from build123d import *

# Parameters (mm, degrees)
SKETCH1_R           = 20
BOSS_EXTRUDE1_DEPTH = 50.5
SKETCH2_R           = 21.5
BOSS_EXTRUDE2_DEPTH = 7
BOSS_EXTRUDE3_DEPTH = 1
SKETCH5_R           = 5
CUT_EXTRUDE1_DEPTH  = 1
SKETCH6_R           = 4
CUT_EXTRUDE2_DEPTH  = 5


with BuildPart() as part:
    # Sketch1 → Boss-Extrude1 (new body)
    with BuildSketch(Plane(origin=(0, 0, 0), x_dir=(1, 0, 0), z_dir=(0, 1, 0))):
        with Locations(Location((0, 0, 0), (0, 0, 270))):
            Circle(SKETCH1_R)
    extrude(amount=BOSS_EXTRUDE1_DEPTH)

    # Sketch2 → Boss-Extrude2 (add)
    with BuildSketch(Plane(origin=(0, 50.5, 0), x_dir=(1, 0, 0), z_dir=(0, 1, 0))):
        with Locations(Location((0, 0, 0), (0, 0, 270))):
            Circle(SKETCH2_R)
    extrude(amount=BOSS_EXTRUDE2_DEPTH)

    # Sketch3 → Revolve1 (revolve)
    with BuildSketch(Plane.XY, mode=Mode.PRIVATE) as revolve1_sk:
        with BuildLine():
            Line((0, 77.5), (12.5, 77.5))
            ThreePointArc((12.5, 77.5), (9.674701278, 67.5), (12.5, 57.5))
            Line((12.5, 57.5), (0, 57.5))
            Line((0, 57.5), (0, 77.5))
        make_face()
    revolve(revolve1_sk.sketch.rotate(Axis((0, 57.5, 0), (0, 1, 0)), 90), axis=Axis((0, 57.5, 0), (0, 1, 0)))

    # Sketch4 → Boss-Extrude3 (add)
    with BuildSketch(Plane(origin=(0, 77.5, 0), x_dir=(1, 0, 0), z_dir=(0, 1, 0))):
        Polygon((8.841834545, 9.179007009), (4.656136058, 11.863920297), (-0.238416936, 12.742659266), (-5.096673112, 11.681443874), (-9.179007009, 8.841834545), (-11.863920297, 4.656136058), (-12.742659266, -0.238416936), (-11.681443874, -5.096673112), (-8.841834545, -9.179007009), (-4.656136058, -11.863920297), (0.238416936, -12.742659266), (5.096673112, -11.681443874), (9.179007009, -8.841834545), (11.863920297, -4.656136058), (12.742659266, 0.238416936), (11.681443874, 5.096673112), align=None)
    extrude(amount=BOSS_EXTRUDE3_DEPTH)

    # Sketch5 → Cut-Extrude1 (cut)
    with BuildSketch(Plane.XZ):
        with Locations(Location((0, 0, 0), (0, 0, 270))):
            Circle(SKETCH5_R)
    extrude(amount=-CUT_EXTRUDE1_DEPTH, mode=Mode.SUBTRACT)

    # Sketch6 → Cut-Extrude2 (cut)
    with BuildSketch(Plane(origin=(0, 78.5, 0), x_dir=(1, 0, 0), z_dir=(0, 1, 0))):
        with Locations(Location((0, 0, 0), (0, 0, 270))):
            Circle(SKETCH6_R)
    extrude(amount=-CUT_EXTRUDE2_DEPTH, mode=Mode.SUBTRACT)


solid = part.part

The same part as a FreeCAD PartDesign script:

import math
import FreeCAD as App
import Part
import Sketcher


def add_polygon(sketch, points):
    """Adds a closed chain of lines whose ends are joined by coincident constraints."""
    first, n = sketch.GeometryCount, len(points)
    for a, b in zip(points, points[1:] + points[:1]):
        sketch.addGeometry(Part.LineSegment(App.Vector(*a, 0), App.Vector(*b, 0)), False)
    for i in range(n):
        sketch.addConstraint(Sketcher.Constraint("Coincident", first + i, 2, first + (i + 1) % n, 1))

doc = App.newDocument("Part")
body = doc.addObject("PartDesign::Body", "Body")

sketch1 = doc.addObject("Sketcher::SketchObject", "Sketch")
body.addObject(sketch1)
sketch1.AttachmentSupport = (doc.XZ_Plane, [""])
sketch1.MapMode = "FlatFace"
sketch1.addGeometry(Part.Circle(App.Vector(0, 0, 0), App.Vector(0, 0, 1), 20), False)
sketch1.addConstraint([
    Sketcher.Constraint("Coincident", 0, 3, -1, 1),
    Sketcher.Constraint("Diameter", 0, 40.0),
])
pad1 = doc.addObject("PartDesign::Pad", "Pad")
body.addObject(pad1)
pad1.Profile = sketch1
pad1.Length = 50.5
pad1.Reversed = True

sketch2 = doc.addObject("Sketcher::SketchObject", "Sketch001")
body.addObject(sketch2)
sketch2.AttachmentSupport = (doc.XZ_Plane, [""])
sketch2.MapMode = "FlatFace"
sketch2.AttachmentOffset = App.Placement(App.Vector(0, 0, -50.5), App.Rotation())
sketch2.addGeometry(Part.Circle(App.Vector(0, 0, 0), App.Vector(0, 0, 1), 22), False)
sketch2.addConstraint([
    Sketcher.Constraint("Coincident", 0, 3, -1, 1),
    Sketcher.Constraint("Diameter", 0, 43.0),
])
pad2 = doc.addObject("PartDesign::Pad", "Pad001")
body.addObject(pad2)
pad2.Profile = sketch2
pad2.Length = 7
pad2.Reversed = True

sketch3 = doc.addObject("Sketcher::SketchObject", "Sketch002")
body.addObject(sketch3)
sketch3.AttachmentSupport = (doc.XY_Plane, [""])
sketch3.MapMode = "FlatFace"
sketch3.addGeometry([
    Part.LineSegment(App.Vector(12, 78, 0), App.Vector(0, 78, 0)),
    Part.LineSegment(App.Vector(0, 78, 0), App.Vector(0, 58, 0)),
    Part.LineSegment(App.Vector(0, 58, 0), App.Vector(12, 58, 0)),
    Part.ArcOfCircle(Part.Circle(App.Vector(29, 68, 0), App.Vector(0, 0, 1), 19), math.radians(148), math.radians(212)),
], False)
sketch3.addConstraint([
    Sketcher.Constraint("Coincident", 0, 2, 1, 1),
    Sketcher.Constraint("Coincident", 1, 2, 2, 1),
    Sketcher.Constraint("Coincident", 2, 2, 3, 2),
    Sketcher.Constraint("Coincident", 3, 1, 0, 1),
    Sketcher.Constraint("Horizontal", 0),
    Sketcher.Constraint("Vertical", 1),
    Sketcher.Constraint("Horizontal", 2),
    Sketcher.Constraint("PointOnObject", 0, 2, -2),
    Sketcher.Constraint("Vertical", 2, 2, 3, 1),
    Sketcher.Constraint("DistanceY", 1, 2, 1, 1, 20.0),
    Sketcher.Constraint("DistanceX", 0, 2, 0, 1, 12.5),
    Sketcher.Constraint("DistanceY", -1, 1, 3, 3, 67.5),
    Sketcher.Constraint("Radius", 3, 19.109893),
])
revolution = doc.addObject("PartDesign::Revolution", "Revolution")
body.addObject(revolution)
revolution.Profile = sketch3
revolution.ReferenceAxis = (sketch3, ["V_Axis"])
revolution.Angle = 360

sketch4 = doc.addObject("Sketcher::SketchObject", "Sketch003")
body.addObject(sketch4)
sketch4.AttachmentSupport = (doc.XZ_Plane, [""])
sketch4.MapMode = "FlatFace"
sketch4.AttachmentOffset = App.Placement(App.Vector(0, 0, -77.5), App.Rotation())
add_polygon(sketch4, [(8.8, -9.2), (4.7, -11.9), (-0.2, -12.7), (-5.1, -11.7), (-9.2, -8.8), (-11.9, -4.7), (-12.7, 0.2), (-11.7, 5.1), (-8.8, 9.2), (-4.7, 11.9), (0.2, 12.7), (5.1, 11.7), (9.2, 8.8), (11.9, 4.7), (12.7, -0.2), (11.7, -5.1)])
sketch4.addConstraint([
    Sketcher.Constraint("Symmetric", 0, 2, 8, 2, -1, 1),
    Sketcher.Constraint("Symmetric", 1, 2, 9, 2, -1, 1),
    Sketcher.Constraint("Symmetric", 2, 2, 10, 2, -1, 1),
    Sketcher.Constraint("Symmetric", 3, 2, 11, 2, -1, 1),
    Sketcher.Constraint("Symmetric", 4, 2, 12, 2, -1, 1),
    Sketcher.Constraint("Symmetric", 5, 2, 13, 2, -1, 1),
    Sketcher.Constraint("Symmetric", 6, 2, 14, 2, -1, 1),
    Sketcher.Constraint("Symmetric", 7, 2, 15, 2, -1, 1),
    Sketcher.Constraint("Perpendicular", 0, 4),
    Sketcher.Constraint("Perpendicular", 1, 5),
    Sketcher.Constraint("Perpendicular", 2, 6),
    Sketcher.Constraint("Perpendicular", 3, 7),
    Sketcher.Constraint("Equal", 0, 1),
    Sketcher.Constraint("Equal", 1, 2),
    Sketcher.Constraint("Equal", 2, 3),
    Sketcher.Constraint("Equal", 3, 4),
    Sketcher.Constraint("Equal", 4, 5),
    Sketcher.Constraint("Equal", 5, 6),
    Sketcher.Constraint("Equal", 6, 7),
    Sketcher.Constraint("DistanceY", 3, 2, 4, 2, 4.185698),
    Sketcher.Constraint("Distance", 0, 4.972809),
    Sketcher.Constraint("DistanceY", 0, 2, -1, 1, 11.86392),
    Sketcher.Constraint("DistanceY", 1, 2, -1, 1, 12.742659),
    Sketcher.Constraint("DistanceX", 2, 2, 0, 2, 9.752809),
])
pad3 = doc.addObject("PartDesign::Pad", "Pad002")
body.addObject(pad3)
pad3.Profile = sketch4
pad3.Length = 1
pad3.Reversed = True

sketch5 = doc.addObject("Sketcher::SketchObject", "Sketch004")
body.addObject(sketch5)
sketch5.AttachmentSupport = (doc.XZ_Plane, [""])
sketch5.MapMode = "FlatFace"
sketch5.addGeometry(Part.Circle(App.Vector(0, 0, 0), App.Vector(0, 0, 1), 5), False)
sketch5.addConstraint([
    Sketcher.Constraint("Coincident", 0, 3, -1, 1),
    Sketcher.Constraint("Diameter", 0, 10.0),
])
pocket1 = doc.addObject("PartDesign::Pocket", "Pocket")
body.addObject(pocket1)
pocket1.Profile = sketch5
pocket1.Length = 1

sketch6 = doc.addObject("Sketcher::SketchObject", "Sketch005")
body.addObject(sketch6)
sketch6.AttachmentSupport = (doc.XZ_Plane, [""])
sketch6.MapMode = "FlatFace"
sketch6.AttachmentOffset = App.Placement(App.Vector(0, 0, -78.5), App.Rotation())
sketch6.addGeometry(Part.Circle(App.Vector(0, 0, 0), App.Vector(0, 0, 1), 4), False)
sketch6.addConstraint([
    Sketcher.Constraint("Coincident", 0, 3, -1, 1),
    Sketcher.Constraint("Diameter", 0, 8.0),
])
pocket2 = doc.addObject("PartDesign::Pocket", "Pocket001")
body.addObject(pocket2)
pocket2.Profile = sketch6
pocket2.Length = 5
pocket2.Reversed = True

doc.recompute()
